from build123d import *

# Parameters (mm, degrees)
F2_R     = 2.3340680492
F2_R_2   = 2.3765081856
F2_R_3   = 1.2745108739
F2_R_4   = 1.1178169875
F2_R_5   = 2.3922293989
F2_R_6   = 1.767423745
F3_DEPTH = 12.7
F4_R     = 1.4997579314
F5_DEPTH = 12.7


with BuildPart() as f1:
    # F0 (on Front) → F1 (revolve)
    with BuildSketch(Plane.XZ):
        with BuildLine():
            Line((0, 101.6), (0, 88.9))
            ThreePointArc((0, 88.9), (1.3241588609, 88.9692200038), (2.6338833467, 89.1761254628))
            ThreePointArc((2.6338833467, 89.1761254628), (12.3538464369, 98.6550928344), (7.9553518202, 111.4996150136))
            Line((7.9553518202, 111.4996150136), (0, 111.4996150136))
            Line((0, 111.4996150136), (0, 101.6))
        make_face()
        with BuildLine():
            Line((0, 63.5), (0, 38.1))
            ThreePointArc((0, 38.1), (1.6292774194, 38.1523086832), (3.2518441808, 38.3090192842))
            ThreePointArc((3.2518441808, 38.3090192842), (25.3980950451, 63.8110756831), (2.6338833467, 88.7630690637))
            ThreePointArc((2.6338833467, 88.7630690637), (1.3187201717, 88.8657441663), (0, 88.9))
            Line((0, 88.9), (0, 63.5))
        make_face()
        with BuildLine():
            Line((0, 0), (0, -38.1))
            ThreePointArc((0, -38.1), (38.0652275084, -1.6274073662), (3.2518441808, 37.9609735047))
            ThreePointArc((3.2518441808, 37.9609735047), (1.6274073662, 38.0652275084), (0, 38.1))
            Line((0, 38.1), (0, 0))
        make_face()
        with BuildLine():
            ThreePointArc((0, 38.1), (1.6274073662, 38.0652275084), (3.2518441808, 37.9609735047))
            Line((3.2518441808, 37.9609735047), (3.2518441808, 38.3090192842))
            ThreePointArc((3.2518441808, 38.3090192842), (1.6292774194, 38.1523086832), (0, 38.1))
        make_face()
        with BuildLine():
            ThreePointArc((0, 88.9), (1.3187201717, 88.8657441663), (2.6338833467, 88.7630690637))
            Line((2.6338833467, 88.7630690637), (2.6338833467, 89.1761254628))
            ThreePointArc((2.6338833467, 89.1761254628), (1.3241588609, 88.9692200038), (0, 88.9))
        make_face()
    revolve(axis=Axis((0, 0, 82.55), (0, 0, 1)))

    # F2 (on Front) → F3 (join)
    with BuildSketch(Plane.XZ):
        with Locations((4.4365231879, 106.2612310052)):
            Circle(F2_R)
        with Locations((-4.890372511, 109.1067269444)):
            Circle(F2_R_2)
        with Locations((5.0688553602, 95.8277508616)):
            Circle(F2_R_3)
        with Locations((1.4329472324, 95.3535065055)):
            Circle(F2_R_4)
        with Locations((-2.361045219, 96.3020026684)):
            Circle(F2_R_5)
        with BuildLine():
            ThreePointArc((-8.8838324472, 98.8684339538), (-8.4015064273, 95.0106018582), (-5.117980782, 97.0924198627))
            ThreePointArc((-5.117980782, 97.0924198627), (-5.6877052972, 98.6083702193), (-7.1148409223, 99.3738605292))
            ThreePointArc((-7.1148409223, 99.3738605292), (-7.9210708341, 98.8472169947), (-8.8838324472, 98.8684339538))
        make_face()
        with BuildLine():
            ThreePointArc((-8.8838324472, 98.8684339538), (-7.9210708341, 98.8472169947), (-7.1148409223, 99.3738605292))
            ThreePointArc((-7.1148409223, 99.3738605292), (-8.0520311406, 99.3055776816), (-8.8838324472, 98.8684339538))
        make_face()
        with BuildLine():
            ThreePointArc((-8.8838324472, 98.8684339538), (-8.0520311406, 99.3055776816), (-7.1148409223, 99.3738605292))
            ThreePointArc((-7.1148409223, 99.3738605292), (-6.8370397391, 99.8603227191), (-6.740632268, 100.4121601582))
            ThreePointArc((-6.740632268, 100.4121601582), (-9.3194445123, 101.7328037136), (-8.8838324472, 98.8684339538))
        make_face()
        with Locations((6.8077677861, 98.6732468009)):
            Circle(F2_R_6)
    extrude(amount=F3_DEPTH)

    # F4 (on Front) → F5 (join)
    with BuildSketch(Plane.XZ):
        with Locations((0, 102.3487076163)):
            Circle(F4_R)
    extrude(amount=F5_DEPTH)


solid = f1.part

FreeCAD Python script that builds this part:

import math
import FreeCAD as App
import Part
import Sketcher
Q = App.Units.Quantity

doc = App.newDocument("Part")
body = doc.addObject("PartDesign::Body", "Body")

sketch1 = body.newObject("Sketcher::SketchObject", "Sketch")
sketch1.AttachmentSupport = (doc.getObject("XZ_Plane"), [""])
sketch1.MapMode = "FlatFace"
sketch1.addGeometry([
    Part.ArcOfCircle(Part.Circle(App.Vector(0, 101.6, 0), App.Vector(0, 0, 1), 12.7), math.radians(-78), math.radians(51)),
    Part.LineSegment(App.Vector(7.96, 111.5, 0), App.Vector(0, 111.5, 0)),
    Part.LineSegment(App.Vector(0, 111.5, 0), App.Vector(0, -38.1, 0)),
    Part.ArcOfCircle(Part.Circle(App.Vector(0, 0, 0), App.Vector(0, 0, 1), 38.1), math.radians(-90), math.radians(85)),
    Part.LineSegment(App.Vector(3.25, 37.96, 0), App.Vector(3.25, 38.31, 0)),
    Part.ArcOfCircle(Part.Circle(App.Vector(0, 63.5, 0), App.Vector(0, 0, 1), 25.4), math.radians(-83), math.radians(84)),
    Part.LineSegment(App.Vector(2.63, 88.76, 0), App.Vector(2.63, 89.18, 0)),
], False)
sketch1.addConstraint([
    Sketcher.Constraint("Coincident", 0, 2, 1, 1),
    Sketcher.Constraint("Coincident", 1, 2, 2, 1),
    Sketcher.Constraint("Coincident", 2, 2, 3, 1),
    Sketcher.Constraint("Coincident", 3, 2, 4, 1),
    Sketcher.Constraint("Coincident", 4, 2, 5, 1),
    Sketcher.Constraint("Coincident", 5, 2, 6, 1),
    Sketcher.Constraint("Coincident", 6, 2, 0, 1),
    Sketcher.Constraint("Horizontal", 1),
    Sketcher.Constraint("Vertical", 2),
    Sketcher.Constraint("Vertical", 4),
    Sketcher.Constraint("Vertical", 6),
    Sketcher.Constraint("Coincident", 3, 3, -1, 1),
    Sketcher.Constraint("PointOnObject", 0, 3, -2),
    Sketcher.Constraint("PointOnObject", 5, 3, -2),
    Sketcher.Constraint("PointOnObject", 1, 2, -2),
    Sketcher.Constraint("Radius", 5, Q("1 in")),
    Sketcher.Constraint("Radius", 0, Q("0.5 in")),
    Sketcher.Constraint("Radius", 3, Q("1.5 in")),
    Sketcher.Constraint("DistanceY", -1, 1, 0, 3, Q("4 in")),
    Sketcher.Constraint("DistanceY", 2, 2, 5, 3, Q("4 in")),
    Sketcher.Constraint("DistanceX", 1, 2, 1, 1, Q("7.955352 mm")),
    Sketcher.Constraint("DistanceY", 4, 1, 4, 2, Q("0.348046 mm")),
    Sketcher.Constraint("DistanceY", 6, 1, 6, 2, Q("0.413056 mm")),
])
revolution = body.newObject("PartDesign::Revolution", "Revolution")
revolution.Profile = sketch1
revolution.ReferenceAxis = (sketch1, ["V_Axis"])
revolution.Angle = 360

sketch2 = body.newObject("Sketcher::SketchObject", "Sketch001")
sketch2.AttachmentSupport = (doc.getObject("XZ_Plane"), [""])
sketch2.MapMode = "FlatFace"
sketch2.addGeometry([
    Part.Circle(App.Vector(4.4, 106.3, 0), App.Vector(0, 0, 1), 2.3),
    Part.Circle(App.Vector(-4.9, 109.1, 0), App.Vector(0, 0, 1), 2.4),
    Part.Circle(App.Vector(5.1, 95.8, 0), App.Vector(0, 0, 1), 1.3),
    Part.Circle(App.Vector(1.4, 95.4, 0), App.Vector(0, 0, 1), 1.1),
    Part.Circle(App.Vector(-2.4, 96.3, 0), App.Vector(0, 0, 1), 2.4),
    Part.ArcOfCircle(Part.Circle(App.Vector(-7.4, 97.1, 0), App.Vector(0, 0, 1), 2.3), math.radians(130), math.radians(360)),
    Part.ArcOfCircle(Part.Circle(App.Vector(-7.4, 97.1, 0), App.Vector(0, 0, 1), 2.3), math.radians(0), math.radians(82)),
    Part.ArcOfCircle(Part.Circle(App.Vector(-8.4, 100.4, 0), App.Vector(0, 0, 1), 1.6), math.radians(-40), math.radians(0)),
    Part.ArcOfCircle(Part.Circle(App.Vector(-8.4, 100.4, 0), App.Vector(0, 0, 1), 1.6), math.radians(0), math.radians(252)),
    Part.Circle(App.Vector(6.8, 98.7, 0), App.Vector(0, 0, 1), 1.8),
], False)
sketch2.addConstraint([
    Sketcher.Constraint("Tangent", 5, 2, 6, 1),
    Sketcher.Constraint("Coincident", 6, 2, 7, 1),
    Sketcher.Constraint("Tangent", 7, 2, 8, 1),
    Sketcher.Constraint("Coincident", 8, 2, 5, 1),
    Sketcher.Constraint("Equal", 5, 6),
    Sketcher.Constraint("Equal", 7, 8),
    Sketcher.Constraint("Horizontal", 6, 3, 5, 2),
    Sketcher.Constraint("Horizontal", 8, 3, 7, 2),
    Sketcher.Constraint("Diameter", 2, Q("2.549022 mm")),
    Sketcher.Constraint("Diameter", 4, Q("4.784459 mm")),
    Sketcher.Constraint("Radius", 5, Q("2.301719 mm")),
    Sketcher.Constraint("Diameter", 0, Q("4.668136 mm")),
    Sketcher.Constraint("Diameter", 1, Q("4.753016 mm")),
    Sketcher.Constraint("Diameter", 3, Q("2.235634 mm")),
    Sketcher.Constraint("Diameter", 9, Q("3.534847 mm")),
    Sketcher.Constraint("Radius", 7, Q("1.627566 mm")),
    Sketcher.Constraint("DistanceX", 5, 3, -1, 1, Q("7.4197 mm")),
    Sketcher.Constraint("DistanceX", 4, 3, 2, 3, Q("7.429901 mm")),
    Sketcher.Constraint("DistanceX", 7, 3, 5, 3, Q("0.948498 mm")),
    Sketcher.Constraint("DistanceY", 6, 2, 7, 3, Q("1.0383 mm")),
    Sketcher.Constraint("DistanceY", -1, 1, 0, 3, Q("106.261231 mm")),
    Sketcher.Constraint("DistanceY", -1, 1, 2, 3, Q("95.827751 mm")),
    Sketcher.Constraint("DistanceY", -1, 1, 5, 3, Q("97.09242 mm")),
    Sketcher.Constraint("DistanceX", 3, 3, 2, 3, Q("3.635908 mm")),
    Sketcher.Constraint("DistanceX", 1, 3, 3, 3, Q("6.32332 mm")),
    Sketcher.Constraint("DistanceY", 3, 3, 1, 3, Q("13.75322 mm")),
    Sketcher.Constraint("DistanceY", 2, 3, 4, 3, Q("0.474252 mm")),
    Sketcher.Constraint("DistanceX", 4, 3, 0, 3, Q("6.797568 mm")),
    Sketcher.Constraint("DistanceX", 3, 3, 9, 3, Q("5.374821 mm")),
    Sketcher.Constraint("DistanceY", 3, 3, 9, 3, Q("3.31974 mm")),
    Sketcher.Constraint("DistanceX", -1, 1, 0, 3, Q("4.436523 mm")),
    Sketcher.Constraint("DistanceY", -1, 1, 1, 3, Q("109.106727 mm")),
])
pad1 = body.newObject("PartDesign::Pad", "Pad")
pad1.Profile = sketch2
pad1.Length = Q("0.5 in")

sketch3 = body.newObject("Sketcher::SketchObject", "Sketch002")
sketch3.AttachmentSupport = (doc.getObject("XZ_Plane"), [""])
sketch3.MapMode = "FlatFace"
sketch3.addGeometry(Part.Circle(App.Vector(0, 102.3, 0), App.Vector(0, 0, 1), 1.5), False)
sketch3.addConstraint([
    Sketcher.Constraint("PointOnObject", 0, 3, -2),
    Sketcher.Constraint("Diameter", 0, Q("2.999516 mm")),
    Sketcher.Constraint("DistanceY", -1, 1, 0, 3, Q("102.348708 mm")),
])
pad2 = body.newObject("PartDesign::Pad", "Pad001")
pad2.Profile = sketch3
pad2.Length = Q("0.5 in")

doc.recompute()
